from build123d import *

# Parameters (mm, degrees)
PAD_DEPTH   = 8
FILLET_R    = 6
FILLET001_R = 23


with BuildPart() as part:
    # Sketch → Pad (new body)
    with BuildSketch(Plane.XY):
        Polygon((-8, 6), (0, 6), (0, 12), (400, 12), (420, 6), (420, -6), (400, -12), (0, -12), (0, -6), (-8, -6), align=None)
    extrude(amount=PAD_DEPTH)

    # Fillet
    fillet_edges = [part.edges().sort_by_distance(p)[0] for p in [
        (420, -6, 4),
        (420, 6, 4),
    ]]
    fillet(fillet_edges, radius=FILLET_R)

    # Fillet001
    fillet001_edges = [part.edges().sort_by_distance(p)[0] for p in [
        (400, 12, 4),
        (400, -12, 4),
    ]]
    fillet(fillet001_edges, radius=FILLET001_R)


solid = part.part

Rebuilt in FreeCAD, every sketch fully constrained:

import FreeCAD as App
import Part
import Sketcher
from FreeCAD import Vector
Q = App.Units.Quantity


def edges_at(feature, points):
    """Names of the edges that pass closest to the given points."""
    edges = feature.Shape.Edges
    near = lambda p: min(range(len(edges)), key=lambda i: edges[i].distToShape(Part.Vertex(*p))[0])
    return sorted({f"Edge{near(p) + 1}" for p in points})


def add_polygon(sketch, points):
    """Adds a closed chain of lines whose ends are joined by coincident constraints."""
    first, n = sketch.GeometryCount, len(points)
    for a, b in zip(points, points[1:] + points[:1]):
        sketch.addGeometry(Part.LineSegment(App.Vector(*a, 0), App.Vector(*b, 0)), False)
    for i in range(n):
        sketch.addConstraint(Sketcher.Constraint("Coincident", first + i, 2, first + (i + 1) % n, 1))

doc = App.newDocument("Part")
body = doc.addObject("PartDesign::Body", "Body")

# Sketch on XY plane
sketch1 = body.newObject("Sketcher::SketchObject", "Sketch")
sketch1.AttachmentSupport = (doc.getObject("XY_Plane"), [""])
sketch1.MapMode = "FlatFace"
add_polygon(sketch1, [(0, 6), (-8, 6), (-8, -6), (0, -6), (0, -12), (400, -12), (420, -6), (420, 6), (400, 12), (0, 12)])  # lines 0-9
sketch1.addConstraint([
    Sketcher.Constraint("Horizontal", 0),
    Sketcher.Constraint("Vertical", 1),
    Sketcher.Constraint("Horizontal", 2),
    Sketcher.Constraint("Vertical", 3),
    Sketcher.Constraint("Horizontal", 4),
    Sketcher.Constraint("Vertical", 6),
    Sketcher.Constraint("Horizontal", 8),
    Sketcher.Constraint("Vertical", 9),
    Sketcher.Constraint("Symmetric", 3, 2, 8, 2, -1, 1),
    Sketcher.Constraint("Symmetric", 2, 2, 9, 2, -1),
    Sketcher.Constraint("Horizontal", 2, 2, 5, 2),
    Sketcher.Constraint("Horizontal", 0, 2, 6, 2),
    Sketcher.Constraint("Vertical", 4, 2, 7, 2),
    Sketcher.Constraint("DistanceX", 0, 2, 0, 1, Q("8 mm")),
    Sketcher.Constraint("DistanceX", 4, 1, 4, 2, Q("400 mm")),
    Sketcher.Constraint("DistanceY", 1, 2, 1, 1, Q("12 mm")),
    Sketcher.Constraint("DistanceY", 3, 2, 3, 1, Q("6 mm")),
    Sketcher.Constraint("DistanceX", -1, 1, 5, 2, Q("420 mm")),
])
pad1 = body.newObject("PartDesign::Pad", "Pad")
pad1.Profile = sketch1
pad1.Length = 8
doc.recompute()

fillet = body.newObject("PartDesign::Fillet", "Fillet")
fillet.Base = (pad1, edges_at(pad1, [(420, -6, 4), (420, 6, 4)]))
fillet.Radius = 6
doc.recompute()

fillet2 = body.newObject("PartDesign::Fillet", "Fillet001")
fillet2.Base = (fillet, edges_at(fillet, [(400, 12, 4), (400, -12, 4)]))
fillet2.Radius = 23

doc.recompute()
